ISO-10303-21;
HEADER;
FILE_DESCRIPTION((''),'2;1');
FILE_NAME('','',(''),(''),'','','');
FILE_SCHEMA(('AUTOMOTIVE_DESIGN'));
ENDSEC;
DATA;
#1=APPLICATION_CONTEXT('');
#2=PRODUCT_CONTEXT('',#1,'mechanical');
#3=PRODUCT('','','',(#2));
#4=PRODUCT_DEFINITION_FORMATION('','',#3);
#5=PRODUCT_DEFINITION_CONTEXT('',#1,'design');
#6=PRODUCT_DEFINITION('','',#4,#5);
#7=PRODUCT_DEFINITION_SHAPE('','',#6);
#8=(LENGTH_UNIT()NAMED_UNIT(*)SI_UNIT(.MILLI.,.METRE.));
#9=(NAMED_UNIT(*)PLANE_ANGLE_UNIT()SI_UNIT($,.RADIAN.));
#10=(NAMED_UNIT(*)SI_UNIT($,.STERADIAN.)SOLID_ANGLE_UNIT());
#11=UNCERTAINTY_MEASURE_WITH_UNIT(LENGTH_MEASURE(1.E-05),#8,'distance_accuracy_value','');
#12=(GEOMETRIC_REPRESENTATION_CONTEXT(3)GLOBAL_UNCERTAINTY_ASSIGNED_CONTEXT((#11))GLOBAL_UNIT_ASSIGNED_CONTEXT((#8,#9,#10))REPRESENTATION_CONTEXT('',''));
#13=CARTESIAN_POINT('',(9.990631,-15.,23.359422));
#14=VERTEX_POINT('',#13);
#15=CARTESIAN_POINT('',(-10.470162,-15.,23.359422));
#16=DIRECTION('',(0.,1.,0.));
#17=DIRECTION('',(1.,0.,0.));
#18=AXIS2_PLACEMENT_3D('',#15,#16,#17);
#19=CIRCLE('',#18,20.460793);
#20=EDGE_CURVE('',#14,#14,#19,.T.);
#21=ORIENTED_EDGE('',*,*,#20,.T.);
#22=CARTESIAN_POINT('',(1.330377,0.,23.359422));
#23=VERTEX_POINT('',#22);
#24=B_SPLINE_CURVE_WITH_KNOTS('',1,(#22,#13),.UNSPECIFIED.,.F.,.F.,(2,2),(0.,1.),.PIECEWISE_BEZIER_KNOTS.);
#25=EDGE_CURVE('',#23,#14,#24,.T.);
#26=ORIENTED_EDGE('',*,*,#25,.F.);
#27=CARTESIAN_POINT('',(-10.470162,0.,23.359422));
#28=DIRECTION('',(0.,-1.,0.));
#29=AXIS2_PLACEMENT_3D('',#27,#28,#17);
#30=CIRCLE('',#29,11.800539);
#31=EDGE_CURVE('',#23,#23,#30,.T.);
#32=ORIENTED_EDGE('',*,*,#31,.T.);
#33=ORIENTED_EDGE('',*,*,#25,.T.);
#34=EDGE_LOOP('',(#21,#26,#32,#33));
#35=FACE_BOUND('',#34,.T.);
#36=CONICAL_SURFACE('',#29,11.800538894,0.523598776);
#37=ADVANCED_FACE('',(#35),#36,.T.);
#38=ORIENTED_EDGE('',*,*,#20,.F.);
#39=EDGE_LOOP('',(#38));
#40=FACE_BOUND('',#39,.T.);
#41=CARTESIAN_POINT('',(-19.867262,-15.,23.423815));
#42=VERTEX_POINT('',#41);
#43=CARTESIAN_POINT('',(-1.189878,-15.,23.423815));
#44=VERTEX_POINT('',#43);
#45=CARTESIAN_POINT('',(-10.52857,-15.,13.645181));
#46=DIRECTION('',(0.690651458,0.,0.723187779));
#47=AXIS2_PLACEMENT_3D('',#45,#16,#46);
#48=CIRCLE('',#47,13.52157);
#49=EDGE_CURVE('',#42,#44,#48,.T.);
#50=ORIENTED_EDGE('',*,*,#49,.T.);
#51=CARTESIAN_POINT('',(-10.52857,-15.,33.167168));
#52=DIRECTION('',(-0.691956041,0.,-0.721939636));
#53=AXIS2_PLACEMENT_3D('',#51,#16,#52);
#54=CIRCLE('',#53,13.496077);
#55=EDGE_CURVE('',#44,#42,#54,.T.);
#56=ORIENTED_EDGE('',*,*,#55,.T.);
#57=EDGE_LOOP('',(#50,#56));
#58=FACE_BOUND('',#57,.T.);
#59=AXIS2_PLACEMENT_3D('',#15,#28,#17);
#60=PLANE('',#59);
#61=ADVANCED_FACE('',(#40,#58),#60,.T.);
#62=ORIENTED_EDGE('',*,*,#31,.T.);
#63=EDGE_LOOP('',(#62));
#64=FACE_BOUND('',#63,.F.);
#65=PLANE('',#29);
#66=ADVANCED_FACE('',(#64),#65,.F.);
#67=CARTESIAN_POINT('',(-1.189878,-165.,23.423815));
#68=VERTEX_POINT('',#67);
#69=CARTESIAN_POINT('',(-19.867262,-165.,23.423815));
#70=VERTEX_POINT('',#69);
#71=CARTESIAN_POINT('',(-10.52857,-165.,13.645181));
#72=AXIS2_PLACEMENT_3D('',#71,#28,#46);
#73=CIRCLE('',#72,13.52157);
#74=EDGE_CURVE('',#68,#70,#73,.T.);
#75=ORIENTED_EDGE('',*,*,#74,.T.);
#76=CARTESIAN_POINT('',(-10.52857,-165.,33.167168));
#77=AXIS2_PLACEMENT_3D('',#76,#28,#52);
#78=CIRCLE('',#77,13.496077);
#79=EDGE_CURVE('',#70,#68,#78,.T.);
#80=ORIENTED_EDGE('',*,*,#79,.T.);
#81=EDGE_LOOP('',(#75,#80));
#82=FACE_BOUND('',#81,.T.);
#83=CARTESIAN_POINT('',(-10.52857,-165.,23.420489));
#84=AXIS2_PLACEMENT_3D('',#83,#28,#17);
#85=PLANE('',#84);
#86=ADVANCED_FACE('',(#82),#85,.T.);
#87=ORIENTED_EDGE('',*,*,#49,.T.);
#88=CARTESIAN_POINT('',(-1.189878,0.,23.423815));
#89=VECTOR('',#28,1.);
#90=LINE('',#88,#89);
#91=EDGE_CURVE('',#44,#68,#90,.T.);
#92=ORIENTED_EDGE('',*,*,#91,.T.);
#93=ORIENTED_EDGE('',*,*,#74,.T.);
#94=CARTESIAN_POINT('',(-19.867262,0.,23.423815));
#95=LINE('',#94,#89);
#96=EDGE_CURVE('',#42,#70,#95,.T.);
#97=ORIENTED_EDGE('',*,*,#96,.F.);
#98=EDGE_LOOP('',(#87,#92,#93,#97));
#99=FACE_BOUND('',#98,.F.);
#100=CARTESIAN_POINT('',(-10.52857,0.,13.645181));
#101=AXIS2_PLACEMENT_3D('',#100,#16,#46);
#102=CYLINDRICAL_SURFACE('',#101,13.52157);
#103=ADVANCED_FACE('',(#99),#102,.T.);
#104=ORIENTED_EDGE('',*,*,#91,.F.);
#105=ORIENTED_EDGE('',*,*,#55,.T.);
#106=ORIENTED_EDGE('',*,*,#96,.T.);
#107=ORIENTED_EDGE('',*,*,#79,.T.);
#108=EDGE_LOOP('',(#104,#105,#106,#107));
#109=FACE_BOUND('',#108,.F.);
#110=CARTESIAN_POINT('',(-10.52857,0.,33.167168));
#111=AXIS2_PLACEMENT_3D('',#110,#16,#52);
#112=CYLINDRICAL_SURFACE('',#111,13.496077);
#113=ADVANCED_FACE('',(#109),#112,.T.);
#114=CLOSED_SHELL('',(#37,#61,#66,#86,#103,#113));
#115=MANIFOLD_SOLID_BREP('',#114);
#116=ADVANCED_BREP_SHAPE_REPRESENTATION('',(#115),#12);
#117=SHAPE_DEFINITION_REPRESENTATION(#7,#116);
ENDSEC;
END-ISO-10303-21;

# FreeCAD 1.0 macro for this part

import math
import FreeCAD as App
import Part
import Sketcher

V = App.Vector

doc = App.newDocument("Part")
body = doc.addObject("PartDesign::Body", "Body")

# Sketch on XZ plane
sketch1 = body.newObject("Sketcher::SketchObject", "Sketch")
sketch1.AttachmentSupport = (doc.getObject("XZ_Plane"), [""])
sketch1.MapMode = "FlatFace"
sketch1.addGeometry([
    Part.ArcOfCircle(Part.Circle(V(-10.52857, 33.167168, 0), V(0, 0, 1), 13.496077), math.radians(-133.785147), math.radians(-46.214853)),
    Part.ArcOfCircle(Part.Circle(V(-10.52857, 13.645181, 0), V(0, 0, 1), 13.52157), math.radians(46.3183), math.radians(133.6817)),
], False)
sketch1.addConstraint([
    Sketcher.Constraint("Coincident", 0, 1, 1, 2),
    Sketcher.Constraint("Coincident", 1, 1, 0, 2),
    Sketcher.Constraint("Horizontal", 0, 1, 1, 1),
    Sketcher.Constraint("Radius", 1, 13.52157),
    Sketcher.Constraint("Radius", 0, 13.496077),
    Sketcher.Constraint("DistanceX", 0, 3, -1, 1, 10.52857),
    Sketcher.Constraint("DistanceY", -1, 1, 1, 3, 13.645181),
    Sketcher.Constraint("DistanceX", 0, 1, -1, 1, 19.867262),
])
pad1 = body.newObject("PartDesign::Pad", "Pad")
pad1.Profile = sketch1
pad1.Length = 165

# Sketch on XZ plane
sketch2 = body.newObject("Sketcher::SketchObject", "Sketch001")
sketch2.AttachmentSupport = (doc.getObject("XZ_Plane"), [""])
sketch2.MapMode = "FlatFace"
sketch2.addGeometry(Part.Circle(V(-10.470162, 23.359422, 0), V(0, 0, 1), 11.800539), False)
sketch2.addConstraint([
    Sketcher.Constraint("Diameter", 0, 23.601078),
    Sketcher.Constraint("DistanceY", -1, 1, 0, 3, 23.359422),
    Sketcher.Constraint("DistanceX", 0, 3, -1, 1, 10.470162),
])
pad2 = body.newObject("PartDesign::Pad", "Pad001")
pad2.Profile = sketch2
pad2.Length = 15
pad2.TaperAngle = 30

doc.recompute()
